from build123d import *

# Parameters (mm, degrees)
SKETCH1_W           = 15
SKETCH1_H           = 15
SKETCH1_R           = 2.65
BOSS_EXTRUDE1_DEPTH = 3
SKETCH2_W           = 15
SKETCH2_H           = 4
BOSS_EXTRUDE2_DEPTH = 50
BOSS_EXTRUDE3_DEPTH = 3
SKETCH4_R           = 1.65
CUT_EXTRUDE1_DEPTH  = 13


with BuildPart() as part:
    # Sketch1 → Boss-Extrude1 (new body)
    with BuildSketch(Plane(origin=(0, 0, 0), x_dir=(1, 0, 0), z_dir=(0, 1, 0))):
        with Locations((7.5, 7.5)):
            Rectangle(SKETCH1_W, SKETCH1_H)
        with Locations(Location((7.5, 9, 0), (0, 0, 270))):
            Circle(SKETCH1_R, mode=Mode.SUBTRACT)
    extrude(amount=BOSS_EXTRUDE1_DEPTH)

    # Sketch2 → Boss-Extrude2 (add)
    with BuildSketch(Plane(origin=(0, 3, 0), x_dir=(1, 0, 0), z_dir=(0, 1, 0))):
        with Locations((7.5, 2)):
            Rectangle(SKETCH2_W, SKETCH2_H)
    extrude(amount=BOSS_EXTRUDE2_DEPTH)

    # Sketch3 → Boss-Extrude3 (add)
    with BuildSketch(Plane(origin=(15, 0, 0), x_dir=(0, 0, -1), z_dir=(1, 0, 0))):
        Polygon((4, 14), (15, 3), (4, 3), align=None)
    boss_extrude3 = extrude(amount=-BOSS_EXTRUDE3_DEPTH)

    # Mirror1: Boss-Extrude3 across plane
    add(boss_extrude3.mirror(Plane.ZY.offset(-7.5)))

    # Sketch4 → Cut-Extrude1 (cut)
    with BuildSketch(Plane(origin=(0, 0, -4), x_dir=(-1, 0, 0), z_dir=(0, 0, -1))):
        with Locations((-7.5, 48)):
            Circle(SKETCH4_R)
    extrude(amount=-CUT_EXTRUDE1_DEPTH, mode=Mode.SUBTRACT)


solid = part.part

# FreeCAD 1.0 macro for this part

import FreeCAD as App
import Part
import Sketcher

doc = App.newDocument("Part")
body = doc.addObject("PartDesign::Body", "Body")

# Sketch on XZ plane
sketch1 = body.newObject("Sketcher::SketchObject", "Sketch")
sketch1.AttachmentSupport = (doc.getObject("XZ_Plane"), [""])
sketch1.MapMode = "FlatFace"
sketch1.addGeometry(Part.LineSegment(App.Vector(0, -15, 0), App.Vector(0, 0, 0)), False)
sketch1.addGeometry(Part.LineSegment(App.Vector(0, 0, 0), App.Vector(15, 0, 0)), False)
sketch1.addGeometry(Part.LineSegment(App.Vector(15, 0, 0), App.Vector(15, -15, 0)), False)
sketch1.addGeometry(Part.LineSegment(App.Vector(15, -15, 0), App.Vector(0, -15, 0)), False)
sketch1.addGeometry(Part.Circle(App.Vector(7.5, -9, 0), App.Vector(0, 0, 1), 2.6), False)
sketch1.addConstraint(Sketcher.Constraint("Coincident", 0, 2, 1, 1))
sketch1.addConstraint(Sketcher.Constraint("Coincident", 1, 2, 2, 1))
sketch1.addConstraint(Sketcher.Constraint("Coincident", 2, 2, 3, 1))
sketch1.addConstraint(Sketcher.Constraint("Coincident", 3, 2, 0, 1))
sketch1.addConstraint(Sketcher.Constraint("Vertical", 0))
sketch1.addConstraint(Sketcher.Constraint("Horizontal", 1))
sketch1.addConstraint(Sketcher.Constraint("Vertical", 2))
sketch1.addConstraint(Sketcher.Constraint("Horizontal", 3))
sketch1.addConstraint(Sketcher.Constraint("Coincident", 0, 2, -1, 1))
sketch1.addConstraint(Sketcher.Constraint("Equal", 3, 0))
sketch1.addConstraint(Sketcher.Constraint("Diameter", 4, 5.3))
sketch1.addConstraint(Sketcher.Constraint("DistanceX", 1, 1, 1, 2, 15.0))
sketch1.addConstraint(Sketcher.Constraint("DistanceY", 4, 3, -1, 1, 9.0))
sketch1.addConstraint(Sketcher.Constraint("DistanceX", -1, 1, 4, 3, 7.5))
pad1 = body.newObject("PartDesign::Pad", "Pad")
pad1.Profile = sketch1
pad1.Length = 3
pad1.Reversed = True

# Sketch on XZ plane
sketch2 = body.newObject("Sketcher::SketchObject", "Sketch001")
sketch2.AttachmentSupport = (doc.getObject("XZ_Plane"), [""])
sketch2.MapMode = "FlatFace"
sketch2.AttachmentOffset = App.Placement(App.Vector(0, 0, -3), App.Rotation())
sketch2.addGeometry(Part.LineSegment(App.Vector(0, -4, 0), App.Vector(0, 0, 0)), False)
sketch2.addGeometry(Part.LineSegment(App.Vector(0, 0, 0), App.Vector(15, 0, 0)), False)
sketch2.addGeometry(Part.LineSegment(App.Vector(15, 0, 0), App.Vector(15, -4, 0)), False)
sketch2.addGeometry(Part.LineSegment(App.Vector(15, -4, 0), App.Vector(0, -4, 0)), False)
sketch2.addConstraint(Sketcher.Constraint("Coincident", 0, 2, 1, 1))
sketch2.addConstraint(Sketcher.Constraint("Coincident", 1, 2, 2, 1))
sketch2.addConstraint(Sketcher.Constraint("Coincident", 2, 2, 3, 1))
sketch2.addConstraint(Sketcher.Constraint("Coincident", 3, 2, 0, 1))
sketch2.addConstraint(Sketcher.Constraint("Vertical", 0))
sketch2.addConstraint(Sketcher.Constraint("Horizontal", 1))
sketch2.addConstraint(Sketcher.Constraint("Vertical", 2))
sketch2.addConstraint(Sketcher.Constraint("Horizontal", 3))
sketch2.addConstraint(Sketcher.Constraint("Coincident", 0, 2, -1, 1))
sketch2.addConstraint(Sketcher.Constraint("DistanceX", 1, 1, 1, 2, 15.0))
sketch2.addConstraint(Sketcher.Constraint("DistanceY", 0, 1, 0, 2, 4.0))
pad2 = body.newObject("PartDesign::Pad", "Pad001")
pad2.Profile = sketch2
pad2.Length = 50
pad2.Reversed = True

# Sketch on YZ plane
sketch3 = body.newObject("Sketcher::SketchObject", "Sketch002")
sketch3.AttachmentSupport = (doc.getObject("YZ_Plane"), [""])
sketch3.MapMode = "FlatFace"
sketch3.AttachmentOffset = App.Placement(App.Vector(0, 0, 15), App.Rotation())
sketch3.addGeometry(Part.LineSegment(App.Vector(3, -15, 0), App.Vector(14, -4, 0)), False)
sketch3.addGeometry(Part.LineSegment(App.Vector(14, -4, 0), App.Vector(3, -4, 0)), False)
sketch3.addGeometry(Part.LineSegment(App.Vector(3, -4, 0), App.Vector(3, -15, 0)), False)
sketch3.addConstraint(Sketcher.Constraint("Coincident", 0, 2, 1, 1))
sketch3.addConstraint(Sketcher.Constraint("Coincident", 1, 2, 2, 1))
sketch3.addConstraint(Sketcher.Constraint("Coincident", 2, 2, 0, 1))
sketch3.addConstraint(Sketcher.Constraint("Horizontal", 1))
sketch3.addConstraint(Sketcher.Constraint("Vertical", 2))
sketch3.addConstraint(Sketcher.Constraint("Equal", 1, 2))
sketch3.addConstraint(Sketcher.Constraint("DistanceX", 1, 2, 1, 1, 11.0))
sketch3.addConstraint(Sketcher.Constraint("DistanceX", -1, 1, 0, 2, 14.0))
sketch3.addConstraint(Sketcher.Constraint("DistanceY", 0, 2, -1, 1, 4.0))
pad3 = body.newObject("PartDesign::Pad", "Pad002")
pad3.Profile = sketch3
pad3.Length = 3
pad3.Reversed = True
doc.recompute()

datumplane = body.newObject("PartDesign::Plane", "DatumPlane")
datumplane.AttachmentSupport = (doc.getObject("YZ_Plane"), [""])
datumplane.MapMode = "FlatFace"
datumplane.AttachmentOffset = App.Placement(App.Vector(0, 0, 7.5), App.Rotation())
mirrored = body.newObject("PartDesign::Mirrored", "Mirrored")
mirrored.Originals = [pad3]
mirrored.MirrorPlane = (datumplane, [""])
body.Tip = mirrored

# Sketch on XY plane
sketch4 = body.newObject("Sketcher::SketchObject", "Sketch003")
sketch4.AttachmentSupport = (doc.getObject("XY_Plane"), [""])
sketch4.MapMode = "FlatFace"
sketch4.AttachmentOffset = App.Placement(App.Vector(0, 0, -4), App.Rotation())
sketch4.addGeometry(Part.Circle(App.Vector(7.5, 48, 0), App.Vector(0, 0, 1), 1.6), False)
sketch4.addConstraint(Sketcher.Constraint("Diameter", 0, 3.3))
sketch4.addConstraint(Sketcher.Constraint("DistanceY", -1, 1, 0, 3, 48.0))
sketch4.addConstraint(Sketcher.Constraint("DistanceX", -1, 1, 0, 3, 7.5))
pocket1 = body.newObject("PartDesign::Pocket", "Pocket")
pocket1.Profile = sketch4
pocket1.Length = 13
pocket1.Reversed = True

doc.recompute()
